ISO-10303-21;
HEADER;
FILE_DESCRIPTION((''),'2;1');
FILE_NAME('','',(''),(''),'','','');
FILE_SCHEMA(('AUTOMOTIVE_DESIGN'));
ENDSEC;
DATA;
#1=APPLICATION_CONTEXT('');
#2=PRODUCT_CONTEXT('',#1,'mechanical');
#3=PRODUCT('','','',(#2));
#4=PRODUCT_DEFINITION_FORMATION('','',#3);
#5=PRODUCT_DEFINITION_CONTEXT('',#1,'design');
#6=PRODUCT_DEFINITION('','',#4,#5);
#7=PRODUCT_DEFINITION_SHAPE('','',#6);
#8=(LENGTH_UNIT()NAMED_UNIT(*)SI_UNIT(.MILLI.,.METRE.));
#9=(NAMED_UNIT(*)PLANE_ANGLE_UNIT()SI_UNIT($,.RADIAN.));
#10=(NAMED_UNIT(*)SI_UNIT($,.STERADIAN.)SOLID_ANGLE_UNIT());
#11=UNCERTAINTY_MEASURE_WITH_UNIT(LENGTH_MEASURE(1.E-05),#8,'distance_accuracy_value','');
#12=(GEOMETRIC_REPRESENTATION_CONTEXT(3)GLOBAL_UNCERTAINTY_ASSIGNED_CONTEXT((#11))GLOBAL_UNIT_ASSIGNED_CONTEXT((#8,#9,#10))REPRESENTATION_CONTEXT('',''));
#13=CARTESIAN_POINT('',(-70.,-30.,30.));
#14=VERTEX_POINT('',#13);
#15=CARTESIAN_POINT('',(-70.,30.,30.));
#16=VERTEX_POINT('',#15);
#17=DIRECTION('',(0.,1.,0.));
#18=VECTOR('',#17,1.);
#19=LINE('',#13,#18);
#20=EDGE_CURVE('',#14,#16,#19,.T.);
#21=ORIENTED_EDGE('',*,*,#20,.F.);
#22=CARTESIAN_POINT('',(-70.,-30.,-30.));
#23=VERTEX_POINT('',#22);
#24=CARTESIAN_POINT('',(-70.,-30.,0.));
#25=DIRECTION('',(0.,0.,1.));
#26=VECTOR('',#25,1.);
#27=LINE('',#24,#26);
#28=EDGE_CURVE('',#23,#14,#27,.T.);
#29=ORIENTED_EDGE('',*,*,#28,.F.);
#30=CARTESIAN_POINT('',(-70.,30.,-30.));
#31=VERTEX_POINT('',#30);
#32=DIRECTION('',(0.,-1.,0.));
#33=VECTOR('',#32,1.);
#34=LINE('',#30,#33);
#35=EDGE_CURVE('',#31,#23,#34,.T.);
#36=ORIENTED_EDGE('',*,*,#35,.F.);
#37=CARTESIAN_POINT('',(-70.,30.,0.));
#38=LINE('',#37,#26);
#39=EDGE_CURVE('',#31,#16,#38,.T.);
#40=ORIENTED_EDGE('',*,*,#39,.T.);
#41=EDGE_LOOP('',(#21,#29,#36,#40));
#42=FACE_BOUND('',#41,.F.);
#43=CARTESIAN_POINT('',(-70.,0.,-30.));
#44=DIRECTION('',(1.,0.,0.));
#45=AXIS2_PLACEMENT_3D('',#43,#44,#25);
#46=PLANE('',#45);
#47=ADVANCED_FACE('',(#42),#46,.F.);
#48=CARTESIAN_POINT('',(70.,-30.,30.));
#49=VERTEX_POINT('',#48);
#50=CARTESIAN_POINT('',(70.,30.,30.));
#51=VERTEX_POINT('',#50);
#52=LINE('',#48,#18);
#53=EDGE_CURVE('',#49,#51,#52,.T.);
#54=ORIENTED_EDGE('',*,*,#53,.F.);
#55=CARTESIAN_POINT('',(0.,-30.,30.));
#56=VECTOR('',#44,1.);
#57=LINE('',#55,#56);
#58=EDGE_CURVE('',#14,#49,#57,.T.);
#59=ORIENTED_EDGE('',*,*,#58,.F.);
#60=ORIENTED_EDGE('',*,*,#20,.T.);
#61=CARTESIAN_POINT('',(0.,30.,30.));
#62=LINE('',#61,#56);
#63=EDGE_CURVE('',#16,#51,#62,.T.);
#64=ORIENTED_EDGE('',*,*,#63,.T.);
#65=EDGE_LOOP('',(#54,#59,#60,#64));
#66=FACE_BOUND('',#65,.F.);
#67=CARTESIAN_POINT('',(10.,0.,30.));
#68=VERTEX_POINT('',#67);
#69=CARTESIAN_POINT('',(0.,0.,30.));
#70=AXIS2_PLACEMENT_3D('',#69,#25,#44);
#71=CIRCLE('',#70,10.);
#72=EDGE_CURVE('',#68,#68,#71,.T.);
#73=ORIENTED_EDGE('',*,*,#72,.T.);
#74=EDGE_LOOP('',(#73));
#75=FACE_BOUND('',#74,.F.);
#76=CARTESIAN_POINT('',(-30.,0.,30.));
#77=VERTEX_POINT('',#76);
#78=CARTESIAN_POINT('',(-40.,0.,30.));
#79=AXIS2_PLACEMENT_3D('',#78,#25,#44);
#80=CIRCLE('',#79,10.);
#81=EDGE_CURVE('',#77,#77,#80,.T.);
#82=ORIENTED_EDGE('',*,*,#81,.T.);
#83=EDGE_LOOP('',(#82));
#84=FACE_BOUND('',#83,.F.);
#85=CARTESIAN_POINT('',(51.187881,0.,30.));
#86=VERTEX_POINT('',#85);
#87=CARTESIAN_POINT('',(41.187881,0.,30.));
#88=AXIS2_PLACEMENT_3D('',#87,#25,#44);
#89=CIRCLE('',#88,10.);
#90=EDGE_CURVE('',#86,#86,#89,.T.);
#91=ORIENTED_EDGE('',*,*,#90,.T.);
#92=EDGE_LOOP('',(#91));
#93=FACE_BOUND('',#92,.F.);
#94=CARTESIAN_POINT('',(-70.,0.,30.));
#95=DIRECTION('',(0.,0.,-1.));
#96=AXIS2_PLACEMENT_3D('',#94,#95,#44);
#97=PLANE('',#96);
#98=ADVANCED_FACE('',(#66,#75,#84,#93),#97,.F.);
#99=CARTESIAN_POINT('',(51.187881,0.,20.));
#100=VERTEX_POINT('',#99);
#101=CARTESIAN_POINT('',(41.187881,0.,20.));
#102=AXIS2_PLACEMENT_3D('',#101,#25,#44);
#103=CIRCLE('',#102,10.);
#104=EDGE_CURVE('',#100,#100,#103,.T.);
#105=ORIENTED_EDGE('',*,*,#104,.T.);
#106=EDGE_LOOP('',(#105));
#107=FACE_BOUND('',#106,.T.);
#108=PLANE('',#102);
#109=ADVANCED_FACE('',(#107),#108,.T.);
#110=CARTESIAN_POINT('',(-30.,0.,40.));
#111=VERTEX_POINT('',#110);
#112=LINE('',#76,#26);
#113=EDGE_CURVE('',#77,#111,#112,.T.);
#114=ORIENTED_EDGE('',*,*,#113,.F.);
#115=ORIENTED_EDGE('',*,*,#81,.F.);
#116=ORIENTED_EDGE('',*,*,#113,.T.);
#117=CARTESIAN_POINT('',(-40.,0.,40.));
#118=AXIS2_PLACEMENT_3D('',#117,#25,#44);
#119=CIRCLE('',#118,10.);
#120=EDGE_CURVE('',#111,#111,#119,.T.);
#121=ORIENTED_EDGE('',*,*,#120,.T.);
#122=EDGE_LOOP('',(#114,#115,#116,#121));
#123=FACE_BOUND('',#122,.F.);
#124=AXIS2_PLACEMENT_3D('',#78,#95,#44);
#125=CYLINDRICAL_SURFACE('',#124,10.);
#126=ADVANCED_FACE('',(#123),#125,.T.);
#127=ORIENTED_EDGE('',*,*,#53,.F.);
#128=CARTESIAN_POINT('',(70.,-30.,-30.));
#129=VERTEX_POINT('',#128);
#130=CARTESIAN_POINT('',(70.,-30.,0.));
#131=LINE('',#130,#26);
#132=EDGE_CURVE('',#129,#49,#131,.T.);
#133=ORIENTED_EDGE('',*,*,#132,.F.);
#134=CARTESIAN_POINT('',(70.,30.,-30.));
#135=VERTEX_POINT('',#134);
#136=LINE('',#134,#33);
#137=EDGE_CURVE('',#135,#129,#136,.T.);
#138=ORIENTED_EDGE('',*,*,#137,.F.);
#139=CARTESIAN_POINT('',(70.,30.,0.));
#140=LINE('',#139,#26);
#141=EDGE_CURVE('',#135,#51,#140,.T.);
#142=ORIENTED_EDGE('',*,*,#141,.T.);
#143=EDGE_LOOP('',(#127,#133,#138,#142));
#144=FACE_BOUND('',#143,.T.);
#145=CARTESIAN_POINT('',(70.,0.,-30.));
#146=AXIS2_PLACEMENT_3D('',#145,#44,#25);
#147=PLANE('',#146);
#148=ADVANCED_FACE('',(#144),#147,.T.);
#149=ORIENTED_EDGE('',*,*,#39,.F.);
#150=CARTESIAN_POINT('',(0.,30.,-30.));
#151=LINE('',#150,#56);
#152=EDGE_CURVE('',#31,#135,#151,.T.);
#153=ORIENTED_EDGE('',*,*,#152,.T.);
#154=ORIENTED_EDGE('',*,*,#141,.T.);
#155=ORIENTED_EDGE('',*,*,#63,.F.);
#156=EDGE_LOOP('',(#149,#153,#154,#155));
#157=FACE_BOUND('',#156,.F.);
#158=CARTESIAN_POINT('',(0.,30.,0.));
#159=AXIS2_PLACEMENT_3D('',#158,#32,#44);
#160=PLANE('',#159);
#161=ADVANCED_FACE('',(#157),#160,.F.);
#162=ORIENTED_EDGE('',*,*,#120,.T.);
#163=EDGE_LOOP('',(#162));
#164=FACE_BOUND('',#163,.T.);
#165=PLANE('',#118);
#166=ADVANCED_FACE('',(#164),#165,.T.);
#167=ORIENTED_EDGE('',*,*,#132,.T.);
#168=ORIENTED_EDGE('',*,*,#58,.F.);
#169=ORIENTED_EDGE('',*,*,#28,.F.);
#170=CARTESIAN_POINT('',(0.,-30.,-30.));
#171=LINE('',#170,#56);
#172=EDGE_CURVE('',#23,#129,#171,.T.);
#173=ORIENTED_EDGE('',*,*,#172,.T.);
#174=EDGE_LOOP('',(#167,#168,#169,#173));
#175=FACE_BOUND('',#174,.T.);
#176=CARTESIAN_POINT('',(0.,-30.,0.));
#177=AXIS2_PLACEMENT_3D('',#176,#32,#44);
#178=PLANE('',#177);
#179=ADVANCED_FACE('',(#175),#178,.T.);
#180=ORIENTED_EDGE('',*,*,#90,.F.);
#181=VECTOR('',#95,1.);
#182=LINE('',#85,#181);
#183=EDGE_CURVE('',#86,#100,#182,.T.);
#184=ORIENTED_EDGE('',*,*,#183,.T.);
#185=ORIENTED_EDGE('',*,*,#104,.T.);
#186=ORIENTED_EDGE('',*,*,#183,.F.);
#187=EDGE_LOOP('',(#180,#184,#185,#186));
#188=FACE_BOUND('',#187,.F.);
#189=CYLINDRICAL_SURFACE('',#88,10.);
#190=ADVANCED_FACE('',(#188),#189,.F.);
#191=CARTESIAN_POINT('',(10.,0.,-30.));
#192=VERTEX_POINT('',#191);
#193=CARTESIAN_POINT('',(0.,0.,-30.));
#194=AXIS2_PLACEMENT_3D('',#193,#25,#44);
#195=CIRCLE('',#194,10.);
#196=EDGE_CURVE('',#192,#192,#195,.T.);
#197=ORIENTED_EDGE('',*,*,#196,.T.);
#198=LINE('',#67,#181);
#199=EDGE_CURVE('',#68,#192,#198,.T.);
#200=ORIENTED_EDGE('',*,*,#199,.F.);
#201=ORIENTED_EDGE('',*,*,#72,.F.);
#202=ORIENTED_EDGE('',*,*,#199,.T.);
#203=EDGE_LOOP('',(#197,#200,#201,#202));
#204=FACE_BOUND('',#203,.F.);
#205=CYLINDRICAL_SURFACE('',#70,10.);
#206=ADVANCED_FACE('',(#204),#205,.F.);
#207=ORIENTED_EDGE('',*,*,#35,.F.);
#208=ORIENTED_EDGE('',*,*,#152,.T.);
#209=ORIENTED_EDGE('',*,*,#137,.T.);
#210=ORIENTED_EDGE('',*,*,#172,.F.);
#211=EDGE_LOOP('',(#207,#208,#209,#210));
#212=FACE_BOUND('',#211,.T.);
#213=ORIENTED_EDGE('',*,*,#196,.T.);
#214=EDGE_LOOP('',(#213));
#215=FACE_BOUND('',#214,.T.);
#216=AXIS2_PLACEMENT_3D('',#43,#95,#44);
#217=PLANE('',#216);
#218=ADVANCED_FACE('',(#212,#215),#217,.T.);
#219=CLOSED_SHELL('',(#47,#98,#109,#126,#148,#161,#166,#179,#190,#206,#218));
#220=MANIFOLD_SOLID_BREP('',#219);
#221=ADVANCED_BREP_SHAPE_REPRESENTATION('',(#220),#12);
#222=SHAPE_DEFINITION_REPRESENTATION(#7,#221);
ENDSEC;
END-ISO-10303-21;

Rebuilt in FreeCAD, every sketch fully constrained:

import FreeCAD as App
import Part
import Sketcher


def add_polygon(sketch, points):
    """Adds a closed chain of lines whose ends are joined by coincident constraints."""
    first, n = sketch.GeometryCount, len(points)
    for a, b in zip(points, points[1:] + points[:1]):
        sketch.addGeometry(Part.LineSegment(App.Vector(*a, 0), App.Vector(*b, 0)), False)
    for i in range(n):
        sketch.addConstraint(Sketcher.Constraint("Coincident", first + i, 2, first + (i + 1) % n, 1))

doc = App.newDocument("Part")
body = doc.addObject("PartDesign::Body", "Body")

sketch1 = body.newObject("Sketcher::SketchObject", "Sketch")
sketch1.AttachmentSupport = (doc.getObject("XZ_Plane"), [""])
sketch1.MapMode = "FlatFace"
add_polygon(sketch1, [(-70, 30), (-70, -30), (70, -30), (70, 30)])
sketch1.addConstraint([
    Sketcher.Constraint("Vertical", 0),
    Sketcher.Constraint("Horizontal", 1),
    Sketcher.Constraint("Vertical", 2),
    Sketcher.Constraint("Horizontal", 3),
    Sketcher.Constraint("Symmetric", 0, 2, 2, 2, -1, 1),
    Sketcher.Constraint("DistanceX", 1, 1, 1, 2, 140.0),
    Sketcher.Constraint("DistanceY", 0, 2, 0, 1, 60.0),
])
pad1 = body.newObject("PartDesign::Pad", "Pad")
pad1.Profile = sketch1
pad1.Length = 60
pad1.Midplane = True

sketch2 = body.newObject("Sketcher::SketchObject", "Sketch001")
sketch2.AttachmentSupport = (doc.getObject("XY_Plane"), [""])
sketch2.MapMode = "FlatFace"
sketch2.AttachmentOffset = App.Placement(App.Vector(0, 0, 30), App.Rotation())
sketch2.addGeometry(Part.Circle(App.Vector(0, 0, 0), App.Vector(0, 0, 1), 10), False)
sketch2.addConstraint([
    Sketcher.Constraint("Coincident", 0, 3, -1, 1),
    Sketcher.Constraint("Diameter", 0, 20.0),
])
pocket1 = body.newObject("PartDesign::Pocket", "Pocket")
pocket1.Profile = sketch2
pocket1.Length = 63.9

sketch3 = body.newObject("Sketcher::SketchObject", "Sketch002")
sketch3.AttachmentSupport = (doc.getObject("XY_Plane"), [""])
sketch3.MapMode = "FlatFace"
sketch3.AttachmentOffset = App.Placement(App.Vector(0, 0, 30), App.Rotation())
sketch3.addGeometry(Part.Circle(App.Vector(41, 0, 0), App.Vector(0, 0, 1), 10), False)
sketch3.addConstraint([
    Sketcher.Constraint("PointOnObject", 0, 3, -1),
    Sketcher.Constraint("Diameter", 0, 20.0),
    Sketcher.Constraint("DistanceX", -1, 1, 0, 3, 41.187881),
])
pocket2 = body.newObject("PartDesign::Pocket", "Pocket001")
pocket2.Profile = sketch3
pocket2.Length = 10

sketch4 = body.newObject("Sketcher::SketchObject", "Sketch003")
sketch4.AttachmentSupport = (doc.getObject("XY_Plane"), [""])
sketch4.MapMode = "FlatFace"
sketch4.AttachmentOffset = App.Placement(App.Vector(0, 0, 30), App.Rotation())
sketch4.addGeometry(Part.Circle(App.Vector(-40, 0, 0), App.Vector(0, 0, 1), 10), False)
sketch4.addConstraint([
    Sketcher.Constraint("PointOnObject", 0, 3, -1),
    Sketcher.Constraint("Diameter", 0, 20.0),
    Sketcher.Constraint("DistanceX", 0, 3, -1, 1, 40.0),
])
pad2 = body.newObject("PartDesign::Pad", "Pad001")
pad2.Profile = sketch4
pad2.Length = 10

doc.recompute()
